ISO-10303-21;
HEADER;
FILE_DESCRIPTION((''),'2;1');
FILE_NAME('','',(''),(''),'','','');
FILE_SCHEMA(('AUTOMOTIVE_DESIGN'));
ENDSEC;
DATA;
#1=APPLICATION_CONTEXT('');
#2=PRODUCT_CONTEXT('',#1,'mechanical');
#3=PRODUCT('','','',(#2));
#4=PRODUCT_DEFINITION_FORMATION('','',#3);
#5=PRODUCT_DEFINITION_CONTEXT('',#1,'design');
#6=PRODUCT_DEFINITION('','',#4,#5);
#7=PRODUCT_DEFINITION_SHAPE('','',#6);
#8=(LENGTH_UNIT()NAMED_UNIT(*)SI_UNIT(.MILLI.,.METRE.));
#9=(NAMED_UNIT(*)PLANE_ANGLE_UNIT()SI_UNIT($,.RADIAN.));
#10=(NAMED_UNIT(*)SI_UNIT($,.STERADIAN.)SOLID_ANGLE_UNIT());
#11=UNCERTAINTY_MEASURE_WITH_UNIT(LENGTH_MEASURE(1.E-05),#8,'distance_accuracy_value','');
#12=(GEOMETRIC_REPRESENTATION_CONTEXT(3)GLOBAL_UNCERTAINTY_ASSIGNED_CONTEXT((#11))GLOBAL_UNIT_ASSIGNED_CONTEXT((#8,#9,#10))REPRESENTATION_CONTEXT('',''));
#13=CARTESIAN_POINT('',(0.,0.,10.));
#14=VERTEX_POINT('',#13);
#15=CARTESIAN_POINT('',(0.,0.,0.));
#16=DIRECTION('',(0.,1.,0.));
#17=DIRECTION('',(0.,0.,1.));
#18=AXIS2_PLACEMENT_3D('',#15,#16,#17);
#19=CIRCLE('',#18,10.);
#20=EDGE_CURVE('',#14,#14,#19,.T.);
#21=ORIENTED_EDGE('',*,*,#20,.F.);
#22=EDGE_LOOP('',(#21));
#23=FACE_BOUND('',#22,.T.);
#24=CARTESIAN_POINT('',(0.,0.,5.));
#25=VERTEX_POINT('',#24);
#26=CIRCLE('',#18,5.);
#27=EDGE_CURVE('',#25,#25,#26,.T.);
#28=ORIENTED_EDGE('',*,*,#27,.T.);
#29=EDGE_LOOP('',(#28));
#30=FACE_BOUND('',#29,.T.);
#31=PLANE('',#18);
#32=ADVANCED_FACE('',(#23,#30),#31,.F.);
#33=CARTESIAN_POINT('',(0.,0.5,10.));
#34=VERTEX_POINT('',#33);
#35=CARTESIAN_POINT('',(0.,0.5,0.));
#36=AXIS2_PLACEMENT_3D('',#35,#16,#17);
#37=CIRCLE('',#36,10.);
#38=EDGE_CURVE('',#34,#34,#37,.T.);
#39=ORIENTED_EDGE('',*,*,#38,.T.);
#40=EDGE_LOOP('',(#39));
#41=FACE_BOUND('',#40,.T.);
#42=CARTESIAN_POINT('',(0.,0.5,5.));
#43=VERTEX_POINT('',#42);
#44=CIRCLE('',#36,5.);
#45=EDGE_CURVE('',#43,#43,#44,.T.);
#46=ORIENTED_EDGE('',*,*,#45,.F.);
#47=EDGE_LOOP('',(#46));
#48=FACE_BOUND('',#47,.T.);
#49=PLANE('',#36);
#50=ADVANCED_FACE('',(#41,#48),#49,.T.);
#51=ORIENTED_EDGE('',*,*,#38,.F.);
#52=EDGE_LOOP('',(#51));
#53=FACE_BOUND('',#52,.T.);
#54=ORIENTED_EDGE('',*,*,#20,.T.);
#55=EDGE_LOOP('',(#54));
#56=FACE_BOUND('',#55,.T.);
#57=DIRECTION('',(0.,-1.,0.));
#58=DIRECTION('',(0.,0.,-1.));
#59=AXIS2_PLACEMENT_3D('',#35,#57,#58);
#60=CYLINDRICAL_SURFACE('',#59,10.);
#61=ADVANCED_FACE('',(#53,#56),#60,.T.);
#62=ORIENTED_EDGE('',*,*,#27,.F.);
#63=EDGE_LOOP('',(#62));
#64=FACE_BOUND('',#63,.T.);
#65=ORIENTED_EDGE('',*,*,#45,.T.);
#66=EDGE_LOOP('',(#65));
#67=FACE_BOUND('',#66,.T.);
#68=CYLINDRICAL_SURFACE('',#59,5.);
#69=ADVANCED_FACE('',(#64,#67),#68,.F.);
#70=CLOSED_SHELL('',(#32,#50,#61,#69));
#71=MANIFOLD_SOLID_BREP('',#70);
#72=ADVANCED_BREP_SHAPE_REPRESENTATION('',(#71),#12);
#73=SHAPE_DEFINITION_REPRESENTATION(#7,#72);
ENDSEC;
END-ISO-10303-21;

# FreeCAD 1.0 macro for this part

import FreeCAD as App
import Part
import Sketcher
Q = App.Units.Quantity

doc = App.newDocument("Part")
params = doc.addObject("Spreadsheet::Sheet", "Params")
for row, (alias, value) in enumerate([
    ("sketch1_diameter", "20 mm"),
    ("sketch1_diameter2", "10 mm"),
    ("pad1_length", "0.5 mm"),
], start=1):
    params.set(f"A{row}", alias)
    params.set(f"B{row}", "=" + value)
    params.setAlias(f"B{row}", alias)

body = doc.addObject("PartDesign::Body", "Body")

# Sketch on XZ plane
sketch1 = doc.addObject("Sketcher::SketchObject", "Sketch")
body.addObject(sketch1)
sketch1.AttachmentSupport = (doc.XZ_Plane, [""])
sketch1.MapMode = "FlatFace"
sketch1.addGeometry([
    Part.Circle(App.Vector(0, 0, 0), App.Vector(0, 0, 1), 10),
    Part.Circle(App.Vector(0, 0, 0), App.Vector(0, 0, 1), 5),
], False)
sketch1.addConstraint([
    Sketcher.Constraint("Coincident", 0, 3, -1, 1),
    Sketcher.Constraint("Coincident", 1, 3, -1, 1),
    Sketcher.Constraint("Diameter", 0, Q("20 mm")),
    Sketcher.Constraint("Diameter", 1, Q("10 mm")),
])
sketch1.setExpression("Constraints[2]", "Params.sketch1_diameter")
sketch1.setExpression("Constraints[3]", "Params.sketch1_diameter2")
pad1 = doc.addObject("PartDesign::Pad", "Pad")
body.addObject(pad1)
pad1.Profile = sketch1
pad1.setExpression("Length", "Params.pad1_length")
pad1.Reversed = True

doc.recompute()
